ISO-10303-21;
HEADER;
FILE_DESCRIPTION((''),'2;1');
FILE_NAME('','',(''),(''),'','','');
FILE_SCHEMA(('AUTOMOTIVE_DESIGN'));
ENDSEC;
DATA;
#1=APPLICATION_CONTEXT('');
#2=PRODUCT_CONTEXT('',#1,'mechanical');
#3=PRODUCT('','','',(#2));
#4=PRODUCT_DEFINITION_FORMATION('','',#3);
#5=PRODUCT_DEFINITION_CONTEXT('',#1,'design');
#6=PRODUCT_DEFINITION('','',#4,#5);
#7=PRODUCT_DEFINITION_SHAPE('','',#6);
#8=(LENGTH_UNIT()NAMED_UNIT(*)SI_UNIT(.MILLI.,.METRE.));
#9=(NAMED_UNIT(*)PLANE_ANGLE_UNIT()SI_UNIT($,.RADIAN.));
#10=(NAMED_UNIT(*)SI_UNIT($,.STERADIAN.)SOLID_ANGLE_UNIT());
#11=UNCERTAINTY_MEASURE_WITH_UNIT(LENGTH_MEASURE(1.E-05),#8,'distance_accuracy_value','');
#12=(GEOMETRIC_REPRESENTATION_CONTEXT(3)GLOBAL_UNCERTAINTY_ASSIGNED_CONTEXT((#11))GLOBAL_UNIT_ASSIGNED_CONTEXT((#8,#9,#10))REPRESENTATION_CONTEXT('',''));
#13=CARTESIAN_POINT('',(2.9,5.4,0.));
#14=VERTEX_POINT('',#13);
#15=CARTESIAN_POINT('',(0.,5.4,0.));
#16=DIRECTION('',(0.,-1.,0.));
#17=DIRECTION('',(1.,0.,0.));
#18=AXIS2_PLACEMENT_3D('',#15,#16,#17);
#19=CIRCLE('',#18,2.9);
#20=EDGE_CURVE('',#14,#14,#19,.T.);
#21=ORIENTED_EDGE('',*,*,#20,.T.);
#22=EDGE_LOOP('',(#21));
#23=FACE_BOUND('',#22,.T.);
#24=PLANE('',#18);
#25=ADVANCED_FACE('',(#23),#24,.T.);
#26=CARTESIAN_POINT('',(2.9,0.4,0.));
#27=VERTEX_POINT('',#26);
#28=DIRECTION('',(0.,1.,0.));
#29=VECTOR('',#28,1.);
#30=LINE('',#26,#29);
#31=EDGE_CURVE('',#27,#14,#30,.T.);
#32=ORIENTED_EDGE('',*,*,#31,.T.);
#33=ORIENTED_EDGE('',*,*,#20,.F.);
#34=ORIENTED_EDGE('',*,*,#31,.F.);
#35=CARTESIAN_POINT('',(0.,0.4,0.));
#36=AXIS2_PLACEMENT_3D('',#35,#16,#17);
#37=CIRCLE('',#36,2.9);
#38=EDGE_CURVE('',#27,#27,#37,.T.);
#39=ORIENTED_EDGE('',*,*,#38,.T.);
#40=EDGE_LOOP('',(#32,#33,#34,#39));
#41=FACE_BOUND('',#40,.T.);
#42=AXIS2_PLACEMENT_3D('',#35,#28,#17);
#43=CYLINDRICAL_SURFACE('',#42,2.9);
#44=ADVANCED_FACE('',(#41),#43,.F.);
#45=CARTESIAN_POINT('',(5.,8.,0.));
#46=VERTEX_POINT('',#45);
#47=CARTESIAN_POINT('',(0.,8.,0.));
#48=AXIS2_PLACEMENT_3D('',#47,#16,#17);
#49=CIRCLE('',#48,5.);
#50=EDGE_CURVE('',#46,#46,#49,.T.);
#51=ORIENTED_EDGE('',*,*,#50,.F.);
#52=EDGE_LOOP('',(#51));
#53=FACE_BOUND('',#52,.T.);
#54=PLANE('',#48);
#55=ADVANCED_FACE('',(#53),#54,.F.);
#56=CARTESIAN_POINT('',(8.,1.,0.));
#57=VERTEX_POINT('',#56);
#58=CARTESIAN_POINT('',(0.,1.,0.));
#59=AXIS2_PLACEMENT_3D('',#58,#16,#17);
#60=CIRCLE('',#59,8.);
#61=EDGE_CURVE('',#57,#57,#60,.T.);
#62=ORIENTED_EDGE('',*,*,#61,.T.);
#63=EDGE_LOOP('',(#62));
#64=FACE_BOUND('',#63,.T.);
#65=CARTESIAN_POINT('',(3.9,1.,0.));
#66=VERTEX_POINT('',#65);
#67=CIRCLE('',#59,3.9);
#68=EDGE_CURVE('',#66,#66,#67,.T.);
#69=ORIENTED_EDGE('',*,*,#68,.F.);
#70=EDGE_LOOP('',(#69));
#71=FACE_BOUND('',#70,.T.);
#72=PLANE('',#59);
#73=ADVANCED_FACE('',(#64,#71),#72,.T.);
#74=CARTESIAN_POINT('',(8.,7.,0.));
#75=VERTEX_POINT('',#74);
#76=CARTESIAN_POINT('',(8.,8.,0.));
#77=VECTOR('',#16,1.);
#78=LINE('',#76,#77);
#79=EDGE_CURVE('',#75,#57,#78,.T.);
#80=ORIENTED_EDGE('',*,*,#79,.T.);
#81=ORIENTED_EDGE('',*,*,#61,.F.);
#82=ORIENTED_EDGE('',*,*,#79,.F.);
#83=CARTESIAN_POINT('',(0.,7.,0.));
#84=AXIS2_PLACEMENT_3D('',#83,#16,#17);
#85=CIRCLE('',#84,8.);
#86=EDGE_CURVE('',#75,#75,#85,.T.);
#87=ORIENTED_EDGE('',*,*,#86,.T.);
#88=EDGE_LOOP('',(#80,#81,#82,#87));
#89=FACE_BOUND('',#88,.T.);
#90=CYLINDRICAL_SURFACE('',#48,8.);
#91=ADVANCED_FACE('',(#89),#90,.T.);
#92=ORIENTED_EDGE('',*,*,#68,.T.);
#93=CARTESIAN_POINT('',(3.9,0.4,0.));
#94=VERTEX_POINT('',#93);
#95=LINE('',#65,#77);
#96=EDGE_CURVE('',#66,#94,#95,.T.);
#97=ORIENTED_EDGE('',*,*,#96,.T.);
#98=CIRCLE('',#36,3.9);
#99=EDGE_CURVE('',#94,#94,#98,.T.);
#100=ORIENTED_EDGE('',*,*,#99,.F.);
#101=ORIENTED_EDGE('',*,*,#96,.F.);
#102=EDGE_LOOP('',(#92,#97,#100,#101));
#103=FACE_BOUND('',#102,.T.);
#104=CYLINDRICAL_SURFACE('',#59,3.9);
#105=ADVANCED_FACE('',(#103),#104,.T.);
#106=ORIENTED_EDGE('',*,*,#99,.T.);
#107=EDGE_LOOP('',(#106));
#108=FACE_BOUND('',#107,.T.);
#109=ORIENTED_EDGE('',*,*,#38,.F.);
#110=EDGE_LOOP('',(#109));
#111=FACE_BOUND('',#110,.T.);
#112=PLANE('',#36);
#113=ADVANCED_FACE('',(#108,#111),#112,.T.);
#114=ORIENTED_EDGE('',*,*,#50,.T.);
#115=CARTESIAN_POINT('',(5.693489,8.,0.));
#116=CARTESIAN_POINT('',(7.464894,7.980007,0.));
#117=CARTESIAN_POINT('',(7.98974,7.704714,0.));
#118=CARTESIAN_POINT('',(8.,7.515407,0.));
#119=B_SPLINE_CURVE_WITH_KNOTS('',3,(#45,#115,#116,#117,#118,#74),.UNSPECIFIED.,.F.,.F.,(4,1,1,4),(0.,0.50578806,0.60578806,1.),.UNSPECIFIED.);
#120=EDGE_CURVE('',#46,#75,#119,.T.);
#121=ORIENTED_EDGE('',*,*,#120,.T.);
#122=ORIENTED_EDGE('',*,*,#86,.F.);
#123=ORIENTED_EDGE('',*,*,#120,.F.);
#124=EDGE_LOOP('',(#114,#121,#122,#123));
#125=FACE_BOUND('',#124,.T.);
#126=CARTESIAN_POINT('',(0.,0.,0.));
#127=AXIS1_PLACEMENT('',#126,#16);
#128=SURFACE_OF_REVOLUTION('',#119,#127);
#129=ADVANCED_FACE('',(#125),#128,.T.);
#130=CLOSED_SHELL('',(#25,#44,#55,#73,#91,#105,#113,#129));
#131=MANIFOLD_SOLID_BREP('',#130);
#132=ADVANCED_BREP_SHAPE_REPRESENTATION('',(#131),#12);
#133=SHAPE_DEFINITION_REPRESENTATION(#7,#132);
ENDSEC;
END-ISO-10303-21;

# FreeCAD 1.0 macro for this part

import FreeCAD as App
import Part
import Sketcher

V = App.Vector


def add_polygon(sketch, points):
    """Adds a closed chain of lines whose ends are joined by coincident constraints."""
    first, n = sketch.GeometryCount, len(points)
    for a, b in zip(points, points[1:] + points[:1]):
        sketch.addGeometry(Part.LineSegment(App.Vector(*a, 0), App.Vector(*b, 0)), False)
    for i in range(n):
        sketch.addConstraint(Sketcher.Constraint("Coincident", first + i, 2, first + (i + 1) % n, 1))

doc = App.newDocument("Part")
params = doc.addObject("Spreadsheet::Sheet", "Params")
for row, (alias, value) in enumerate([
    ("sketch1_width", "8 mm"),
    ("sketch1_width2", "1 mm"),
    ("sketch1_height", "5 mm"),
    ("sketch1_height2", "7 mm"),
    ("sketch1_width3", "2.9 mm"),
    ("revolution_angle", "360 deg"),
    ("groove_angle", "360 deg"),
], start=1):
    params.set(f"A{row}", alias)
    params.set(f"B{row}", "=" + value)
    params.setAlias(f"B{row}", alias)

body = doc.addObject("PartDesign::Body", "Body")

# Sketch on XY plane
sketch1 = body.newObject("Sketcher::SketchObject", "Sketch")
sketch1.AttachmentSupport = (doc.getObject("XY_Plane"), [""])
sketch1.MapMode = "FlatFace"
add_polygon(sketch1, [(8, 8), (0, 8), (0, 5.4), (2.9, 5.4), (2.9, 0.4), (3.9, 0.4), (3.9, 1), (8, 1)])  # lines 0-7
sketch1.addConstraint([
    Sketcher.Constraint("Horizontal", 0),
    Sketcher.Constraint("Vertical", 1),
    Sketcher.Constraint("Horizontal", 2),
    Sketcher.Constraint("Vertical", 3),
    Sketcher.Constraint("Horizontal", 4),
    Sketcher.Constraint("Vertical", 5),
    Sketcher.Constraint("Horizontal", 6),
    Sketcher.Constraint("Vertical", 7),
    Sketcher.Constraint("PointOnObject", 0, 2, -2),
    Sketcher.Constraint("DistanceX", 0, 2, 0, 1, 8.0),
    Sketcher.Constraint("DistanceX", 4, 1, 4, 2, 1.0),
    Sketcher.Constraint("DistanceY", 3, 2, 3, 1, 5.0),
    Sketcher.Constraint("DistanceY", 7, 1, 7, 2, 7.0),
    Sketcher.Constraint("DistanceX", 2, 1, 2, 2, 2.9),
    Sketcher.Constraint("DistanceY", 1, 2, 1, 1, 2.6),
    Sketcher.Constraint("DistanceY", -1, 1, 0, 2, 8.0),
])
sketch1.setExpression("Constraints[17]", "Params.sketch1_width")
sketch1.setExpression("Constraints[18]", "Params.sketch1_width2")
sketch1.setExpression("Constraints[19]", "Params.sketch1_height")
sketch1.setExpression("Constraints[20]", "Params.sketch1_height2")
sketch1.setExpression("Constraints[21]", "Params.sketch1_width3")
revolution = body.newObject("PartDesign::Revolution", "Revolution")
revolution.Profile = sketch1
revolution.ReferenceAxis = (sketch1, ["V_Axis"])
revolution.setExpression("Angle", "Params.revolution_angle")

# Sketch on XY plane
sketch2 = body.newObject("Sketcher::SketchObject", "Sketch001")
sketch2.AttachmentSupport = (doc.getObject("XY_Plane"), [""])
sketch2.MapMode = "FlatFace"
sketch2.addGeometry([
    Part.LineSegment(V(8, 8, 0), V(5, 8, 0)),
    Part.BSplineCurve([V(5, 8, 0), V(5.693489, 8, 0), V(7.464894, 7.980007, 0), V(7.98974, 7.704714, 0), V(8, 7.515407, 0), V(8, 7, 0)], [4, 1, 1, 4], [0, 0.50578806, 0.60578806, 1], False, 3, [1, 1, 1, 1, 1, 1], False),
    Part.LineSegment(V(8, 7, 0), V(8, 8, 0)),
], False)
sketch2.addConstraint([
    Sketcher.Constraint("Block", 1),
    Sketcher.Constraint("Coincident", 0, 2, 1, 1),
    Sketcher.Constraint("Coincident", 1, 2, 2, 1),
    Sketcher.Constraint("Coincident", 2, 2, 0, 1),
    Sketcher.Constraint("Horizontal", 0),
    Sketcher.Constraint("Vertical", 2),
])
groove = body.newObject("PartDesign::Groove", "Groove")
groove.Profile = sketch2
groove.ReferenceAxis = (sketch2, ["V_Axis"])
groove.setExpression("Angle", "Params.groove_angle")

doc.recompute()
